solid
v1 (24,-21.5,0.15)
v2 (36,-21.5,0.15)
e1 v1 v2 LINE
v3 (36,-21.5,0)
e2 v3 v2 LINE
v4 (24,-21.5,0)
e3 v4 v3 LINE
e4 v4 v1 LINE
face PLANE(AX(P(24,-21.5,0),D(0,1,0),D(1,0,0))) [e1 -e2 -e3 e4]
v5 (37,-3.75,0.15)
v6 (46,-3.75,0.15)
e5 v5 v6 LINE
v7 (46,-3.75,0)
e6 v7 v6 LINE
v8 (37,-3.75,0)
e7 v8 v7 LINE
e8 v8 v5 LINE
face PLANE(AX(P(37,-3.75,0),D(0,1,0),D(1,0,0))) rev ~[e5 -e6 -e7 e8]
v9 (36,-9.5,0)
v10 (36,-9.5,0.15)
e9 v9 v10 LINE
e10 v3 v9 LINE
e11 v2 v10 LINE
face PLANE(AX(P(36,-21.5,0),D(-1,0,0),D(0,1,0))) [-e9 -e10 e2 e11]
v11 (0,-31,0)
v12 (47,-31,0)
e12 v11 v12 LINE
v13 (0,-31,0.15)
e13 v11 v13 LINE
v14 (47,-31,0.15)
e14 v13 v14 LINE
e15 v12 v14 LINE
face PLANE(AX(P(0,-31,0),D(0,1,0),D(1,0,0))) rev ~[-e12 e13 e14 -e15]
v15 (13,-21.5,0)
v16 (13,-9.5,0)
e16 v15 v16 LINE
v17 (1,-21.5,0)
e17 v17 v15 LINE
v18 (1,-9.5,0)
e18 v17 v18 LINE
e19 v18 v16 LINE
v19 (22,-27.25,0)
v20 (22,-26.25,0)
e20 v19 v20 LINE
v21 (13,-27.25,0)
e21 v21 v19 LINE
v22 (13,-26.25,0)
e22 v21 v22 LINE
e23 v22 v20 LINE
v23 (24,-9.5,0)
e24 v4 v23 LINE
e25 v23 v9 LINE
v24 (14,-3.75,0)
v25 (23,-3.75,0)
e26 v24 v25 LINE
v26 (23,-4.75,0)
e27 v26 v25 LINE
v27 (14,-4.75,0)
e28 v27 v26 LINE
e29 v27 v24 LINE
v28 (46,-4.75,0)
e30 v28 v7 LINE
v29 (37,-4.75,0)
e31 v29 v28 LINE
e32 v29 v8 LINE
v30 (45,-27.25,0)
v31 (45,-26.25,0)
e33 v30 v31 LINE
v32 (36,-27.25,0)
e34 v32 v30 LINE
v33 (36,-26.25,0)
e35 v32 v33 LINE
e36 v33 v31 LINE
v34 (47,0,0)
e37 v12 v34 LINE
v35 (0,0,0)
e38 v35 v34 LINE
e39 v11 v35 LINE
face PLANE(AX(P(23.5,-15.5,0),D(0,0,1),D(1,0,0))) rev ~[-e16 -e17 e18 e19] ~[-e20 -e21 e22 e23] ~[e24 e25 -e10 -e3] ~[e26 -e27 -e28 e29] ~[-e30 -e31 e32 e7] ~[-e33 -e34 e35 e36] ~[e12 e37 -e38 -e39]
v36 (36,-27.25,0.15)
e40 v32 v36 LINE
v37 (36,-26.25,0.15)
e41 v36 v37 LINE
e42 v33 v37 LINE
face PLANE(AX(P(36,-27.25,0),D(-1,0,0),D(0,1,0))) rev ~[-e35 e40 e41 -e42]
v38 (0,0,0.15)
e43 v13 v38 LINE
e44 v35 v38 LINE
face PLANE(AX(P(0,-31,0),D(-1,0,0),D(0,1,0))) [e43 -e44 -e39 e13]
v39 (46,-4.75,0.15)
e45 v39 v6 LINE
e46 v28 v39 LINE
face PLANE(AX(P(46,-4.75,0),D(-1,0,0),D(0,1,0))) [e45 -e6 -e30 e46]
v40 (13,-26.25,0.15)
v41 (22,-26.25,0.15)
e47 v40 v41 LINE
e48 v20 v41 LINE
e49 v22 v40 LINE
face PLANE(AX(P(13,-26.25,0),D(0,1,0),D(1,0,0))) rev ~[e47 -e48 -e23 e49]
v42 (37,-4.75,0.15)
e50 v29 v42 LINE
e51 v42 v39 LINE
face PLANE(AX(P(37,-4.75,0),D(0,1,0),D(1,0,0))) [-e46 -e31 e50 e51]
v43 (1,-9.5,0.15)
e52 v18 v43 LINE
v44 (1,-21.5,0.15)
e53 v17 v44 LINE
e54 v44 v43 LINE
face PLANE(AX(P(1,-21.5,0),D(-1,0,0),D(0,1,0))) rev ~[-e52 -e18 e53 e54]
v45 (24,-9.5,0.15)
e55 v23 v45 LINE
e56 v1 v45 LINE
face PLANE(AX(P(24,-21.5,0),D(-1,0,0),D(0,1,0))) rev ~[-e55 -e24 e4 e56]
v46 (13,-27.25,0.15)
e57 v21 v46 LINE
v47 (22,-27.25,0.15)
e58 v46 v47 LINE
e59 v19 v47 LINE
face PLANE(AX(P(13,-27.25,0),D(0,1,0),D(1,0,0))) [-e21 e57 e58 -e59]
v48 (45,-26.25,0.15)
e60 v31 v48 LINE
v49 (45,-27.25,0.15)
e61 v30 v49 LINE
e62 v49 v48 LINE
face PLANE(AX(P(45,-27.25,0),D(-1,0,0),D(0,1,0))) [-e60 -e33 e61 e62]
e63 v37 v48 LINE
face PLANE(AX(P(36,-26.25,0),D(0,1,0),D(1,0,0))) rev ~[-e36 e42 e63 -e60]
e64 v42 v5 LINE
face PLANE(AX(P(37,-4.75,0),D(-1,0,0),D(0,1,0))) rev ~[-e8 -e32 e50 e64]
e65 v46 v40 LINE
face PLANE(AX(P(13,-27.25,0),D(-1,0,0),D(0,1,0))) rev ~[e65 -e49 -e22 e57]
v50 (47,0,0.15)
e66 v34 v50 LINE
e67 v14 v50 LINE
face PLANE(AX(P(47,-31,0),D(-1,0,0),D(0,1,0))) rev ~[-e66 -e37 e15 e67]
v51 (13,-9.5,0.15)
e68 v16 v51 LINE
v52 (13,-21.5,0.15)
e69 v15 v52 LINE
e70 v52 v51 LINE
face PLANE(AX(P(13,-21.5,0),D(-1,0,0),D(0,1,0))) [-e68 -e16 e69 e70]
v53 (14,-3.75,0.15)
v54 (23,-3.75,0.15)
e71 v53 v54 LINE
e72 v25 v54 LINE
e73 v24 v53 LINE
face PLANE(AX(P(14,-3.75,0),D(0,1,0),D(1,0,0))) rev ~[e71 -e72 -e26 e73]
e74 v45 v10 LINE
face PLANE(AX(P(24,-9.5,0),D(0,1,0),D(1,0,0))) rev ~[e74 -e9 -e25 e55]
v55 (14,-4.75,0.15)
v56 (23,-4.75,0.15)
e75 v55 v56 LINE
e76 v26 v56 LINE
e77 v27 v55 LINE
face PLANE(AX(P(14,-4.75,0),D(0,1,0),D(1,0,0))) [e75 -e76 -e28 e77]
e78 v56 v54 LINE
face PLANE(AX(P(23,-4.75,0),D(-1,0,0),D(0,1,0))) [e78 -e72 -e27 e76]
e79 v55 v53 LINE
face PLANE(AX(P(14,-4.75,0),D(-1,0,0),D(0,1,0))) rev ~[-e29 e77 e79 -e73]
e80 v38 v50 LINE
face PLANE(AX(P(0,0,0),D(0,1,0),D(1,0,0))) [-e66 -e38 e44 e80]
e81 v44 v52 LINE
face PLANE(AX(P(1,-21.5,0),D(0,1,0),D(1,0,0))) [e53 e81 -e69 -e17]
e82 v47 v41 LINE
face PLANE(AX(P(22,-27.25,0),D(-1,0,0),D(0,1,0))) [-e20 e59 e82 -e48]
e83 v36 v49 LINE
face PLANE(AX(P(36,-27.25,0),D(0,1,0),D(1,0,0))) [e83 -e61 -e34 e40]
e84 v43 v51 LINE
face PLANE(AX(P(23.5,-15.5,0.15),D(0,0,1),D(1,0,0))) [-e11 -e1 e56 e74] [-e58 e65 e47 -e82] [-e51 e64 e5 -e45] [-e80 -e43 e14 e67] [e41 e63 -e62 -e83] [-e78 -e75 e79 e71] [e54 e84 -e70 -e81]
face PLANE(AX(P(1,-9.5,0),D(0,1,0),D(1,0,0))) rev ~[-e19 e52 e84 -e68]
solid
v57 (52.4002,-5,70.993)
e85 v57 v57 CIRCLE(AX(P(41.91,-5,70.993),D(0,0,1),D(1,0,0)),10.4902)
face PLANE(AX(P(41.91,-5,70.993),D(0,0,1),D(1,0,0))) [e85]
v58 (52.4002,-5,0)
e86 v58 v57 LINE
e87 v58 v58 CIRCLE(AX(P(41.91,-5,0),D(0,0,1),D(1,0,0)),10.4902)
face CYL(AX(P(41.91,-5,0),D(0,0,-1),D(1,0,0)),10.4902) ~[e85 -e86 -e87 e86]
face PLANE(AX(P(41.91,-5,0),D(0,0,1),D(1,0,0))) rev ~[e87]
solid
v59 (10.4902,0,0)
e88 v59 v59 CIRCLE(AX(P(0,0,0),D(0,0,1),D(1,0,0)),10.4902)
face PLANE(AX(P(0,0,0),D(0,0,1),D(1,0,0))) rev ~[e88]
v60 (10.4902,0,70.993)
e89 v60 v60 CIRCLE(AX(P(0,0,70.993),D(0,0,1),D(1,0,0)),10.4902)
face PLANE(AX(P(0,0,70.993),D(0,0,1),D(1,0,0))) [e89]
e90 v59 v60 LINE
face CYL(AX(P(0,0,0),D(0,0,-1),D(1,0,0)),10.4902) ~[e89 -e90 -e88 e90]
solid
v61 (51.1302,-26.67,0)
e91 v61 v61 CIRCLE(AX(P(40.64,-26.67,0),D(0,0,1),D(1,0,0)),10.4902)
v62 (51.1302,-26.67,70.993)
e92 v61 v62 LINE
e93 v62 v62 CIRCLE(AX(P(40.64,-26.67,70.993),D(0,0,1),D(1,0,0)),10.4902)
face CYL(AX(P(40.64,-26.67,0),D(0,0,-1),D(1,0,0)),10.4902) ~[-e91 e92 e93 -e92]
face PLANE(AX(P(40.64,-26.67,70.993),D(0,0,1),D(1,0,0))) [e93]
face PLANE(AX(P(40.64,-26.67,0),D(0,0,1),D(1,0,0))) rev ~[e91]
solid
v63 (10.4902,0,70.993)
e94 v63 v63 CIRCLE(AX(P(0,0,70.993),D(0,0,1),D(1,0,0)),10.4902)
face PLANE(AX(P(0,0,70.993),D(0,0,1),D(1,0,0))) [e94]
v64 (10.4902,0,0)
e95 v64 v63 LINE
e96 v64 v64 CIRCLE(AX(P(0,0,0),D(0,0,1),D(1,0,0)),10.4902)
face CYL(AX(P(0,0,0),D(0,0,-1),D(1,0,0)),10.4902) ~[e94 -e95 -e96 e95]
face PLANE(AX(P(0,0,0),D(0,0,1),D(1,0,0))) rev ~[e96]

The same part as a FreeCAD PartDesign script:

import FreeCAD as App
import Part
import Sketcher
from FreeCAD import Vector

doc = App.newDocument("Part")
body = doc.addObject("PartDesign::Body", "Body")

# Sketch on XY plane
sketch1 = body.newObject("Sketcher::SketchObject", "Sketch")
sketch1.AttachmentSupport = (doc.getObject("XY_Plane"), [""])
sketch1.MapMode = "FlatFace"
sketch1.addGeometry(Part.Circle(Vector(0, 0, 0), Vector(0, 0, 1), 10), False)
sketch1.addConstraint([
    Sketcher.Constraint("Coincident", 0, 3, -1, 1),
    Sketcher.Constraint("Diameter", 0, 20.9804),
])
pad1 = body.newObject("PartDesign::Pad", "Pad")
pad1.Profile = sketch1
pad1.Length = 70.993
body2 = doc.addObject("PartDesign::Body", "Body001")

# Sketch on XY plane
sketch2 = body2.newObject("Sketcher::SketchObject", "Sketch001")
sketch2.AttachmentSupport = (doc.getObject("XY_Plane001"), [""])
sketch2.MapMode = "FlatFace"
sketch2.addGeometry([
    Part.LineSegment(Vector(0, 0, 0), Vector(0, -31, 0)),  # 0
    Part.LineSegment(Vector(0, -31, 0), Vector(47, -31, 0)),  # 1
    Part.LineSegment(Vector(47, -31, 0), Vector(47, 0, 0)),  # 2
    Part.LineSegment(Vector(47, 0, 0), Vector(0, 0, 0)),  # 3
    Part.LineSegment(Vector(22, -27.2, 0), Vector(13, -27.2, 0)),  # 4
    Part.LineSegment(Vector(13, -27.2, 0), Vector(13, -26.2, 0)),  # 5
    Part.LineSegment(Vector(13, -26.2, 0), Vector(22, -26.2, 0)),  # 6
    Part.LineSegment(Vector(22, -26.2, 0), Vector(22, -27.2, 0)),  # 7
    Part.LineSegment(Vector(45, -27.2, 0), Vector(36, -27.2, 0)),  # 8
    Part.LineSegment(Vector(36, -27.2, 0), Vector(36, -26.2, 0)),  # 9
    Part.LineSegment(Vector(36, -26.2, 0), Vector(45, -26.2, 0)),  # 10
    Part.LineSegment(Vector(45, -26.2, 0), Vector(45, -27.2, 0)),  # 11
    Part.LineSegment(Vector(13, -21.5, 0), Vector(1, -21.5, 0)),  # 12
    Part.LineSegment(Vector(1, -21.5, 0), Vector(1, -9.5, 0)),  # 13
    Part.LineSegment(Vector(1, -9.5, 0), Vector(13, -9.5, 0)),  # 14
    Part.LineSegment(Vector(13, -9.5, 0), Vector(13, -21.5, 0)),  # 15
    Part.LineSegment(Vector(23, -4.8, 0), Vector(14, -4.8, 0)),  # 16
    Part.LineSegment(Vector(14, -4.8, 0), Vector(14, -3.8, 0)),  # 17
    Part.LineSegment(Vector(14, -3.8, 0), Vector(23, -3.8, 0)),  # 18
    Part.LineSegment(Vector(23, -3.8, 0), Vector(23, -4.8, 0)),  # 19
    Part.LineSegment(Vector(36, -21.5, 0), Vector(24, -21.5, 0)),  # 20
    Part.LineSegment(Vector(24, -21.5, 0), Vector(24, -9.5, 0)),  # 21
    Part.LineSegment(Vector(24, -9.5, 0), Vector(36, -9.5, 0)),  # 22
    Part.LineSegment(Vector(36, -9.5, 0), Vector(36, -21.5, 0)),  # 23
    Part.LineSegment(Vector(46, -4.8, 0), Vector(37, -4.8, 0)),  # 24
    Part.LineSegment(Vector(37, -4.8, 0), Vector(37, -3.8, 0)),  # 25
    Part.LineSegment(Vector(37, -3.8, 0), Vector(46, -3.8, 0)),  # 26
    Part.LineSegment(Vector(46, -3.8, 0), Vector(46, -4.8, 0)),  # 27
], False)
sketch2.addConstraint([
    Sketcher.Constraint("Coincident", 0, 2, 1, 1),
    Sketcher.Constraint("Coincident", 1, 2, 2, 1),
    Sketcher.Constraint("Coincident", 2, 2, 3, 1),
    Sketcher.Constraint("Coincident", 3, 2, 0, 1),
    Sketcher.Constraint("Coincident", 4, 2, 5, 1),
    Sketcher.Constraint("Coincident", 5, 2, 6, 1),
    Sketcher.Constraint("Coincident", 6, 2, 7, 1),
    Sketcher.Constraint("Coincident", 7, 2, 4, 1),
    Sketcher.Constraint("Coincident", 8, 2, 9, 1),
    Sketcher.Constraint("Coincident", 9, 2, 10, 1),
    Sketcher.Constraint("Coincident", 10, 2, 11, 1),
    Sketcher.Constraint("Coincident", 11, 2, 8, 1),
    Sketcher.Constraint("Coincident", 12, 2, 13, 1),
    Sketcher.Constraint("Coincident", 13, 2, 14, 1),
    Sketcher.Constraint("Coincident", 14, 2, 15, 1),
    Sketcher.Constraint("Coincident", 15, 2, 12, 1),
    Sketcher.Constraint("Coincident", 16, 2, 17, 1),
    Sketcher.Constraint("Coincident", 17, 2, 18, 1),
    Sketcher.Constraint("Coincident", 18, 2, 19, 1),
    Sketcher.Constraint("Coincident", 19, 2, 16, 1),
    Sketcher.Constraint("Coincident", 20, 2, 21, 1),
    Sketcher.Constraint("Coincident", 21, 2, 22, 1),
    Sketcher.Constraint("Coincident", 22, 2, 23, 1),
    Sketcher.Constraint("Coincident", 23, 2, 20, 1),
    Sketcher.Constraint("Coincident", 24, 2, 25, 1),
    Sketcher.Constraint("Coincident", 25, 2, 26, 1),
    Sketcher.Constraint("Coincident", 26, 2, 27, 1),
    Sketcher.Constraint("Coincident", 27, 2, 24, 1),
    Sketcher.Constraint("Vertical", 0),
    Sketcher.Constraint("Horizontal", 1),
    Sketcher.Constraint("Vertical", 2),
    Sketcher.Constraint("Horizontal", 3),
    Sketcher.Constraint("Horizontal", 4),
    Sketcher.Constraint("Vertical", 5),
    Sketcher.Constraint("Horizontal", 6),
    Sketcher.Constraint("Vertical", 7),
    Sketcher.Constraint("Horizontal", 8),
    Sketcher.Constraint("Vertical", 9),
    Sketcher.Constraint("Horizontal", 10),
    Sketcher.Constraint("Vertical", 11),
    Sketcher.Constraint("Horizontal", 12),
    Sketcher.Constraint("Vertical", 13),
    Sketcher.Constraint("Horizontal", 14),
    Sketcher.Constraint("Vertical", 15),
    Sketcher.Constraint("Horizontal", 16),
    Sketcher.Constraint("Vertical", 17),
    Sketcher.Constraint("Horizontal", 18),
    Sketcher.Constraint("Vertical", 19),
    Sketcher.Constraint("Horizontal", 20),
    Sketcher.Constraint("Vertical", 21),
    Sketcher.Constraint("Horizontal", 22),
    Sketcher.Constraint("Vertical", 23),
    Sketcher.Constraint("Horizontal", 24),
    Sketcher.Constraint("Vertical", 25),
    Sketcher.Constraint("Horizontal", 26),
    Sketcher.Constraint("Vertical", 27),
    Sketcher.Constraint("Coincident", 3, 2, -1, 1),
    Sketcher.Constraint("Horizontal", 7, 2, 8, 2),
    Sketcher.Constraint("Horizontal", 6, 2, 9, 2),
    Sketcher.Constraint("Horizontal", 15, 2, 20, 2),
    Sketcher.Constraint("Horizontal", 14, 2, 21, 2),
    Sketcher.Constraint("Horizontal", 19, 2, 24, 2),
    Sketcher.Constraint("Horizontal", 18, 2, 25, 2),
    Sketcher.Constraint("Vertical", 5, 2, 14, 2),
    Sketcher.Constraint("Vertical", 9, 2, 22, 2),
    Sketcher.Constraint("Equal", 6, 8),
    Sketcher.Constraint("Equal", 10, 16),
    Sketcher.Constraint("Equal", 14, 20),
    Sketcher.Constraint("Equal", 18, 24),
    Sketcher.Constraint("Equal", 22, 13),
    Sketcher.Constraint("Equal", 11, 17),
    Sketcher.Constraint("DistanceX", 1, 1, 1, 2, 47.0),
    Sketcher.Constraint("DistanceX", 4, 2, 4, 1, 9.0),
    Sketcher.Constraint("DistanceX", 12, 2, 12, 1, 12.0),
    Sketcher.Constraint("DistanceY", 0, 2, 0, 1, 31.0),
    Sketcher.Constraint("DistanceY", 5, 1, 5, 2, 1.0),
    Sketcher.Constraint("DistanceX", -1, 1, 4, 2, 13.0),
    Sketcher.Constraint("DistanceX", -1, 1, 8, 2, 36.0),
    Sketcher.Constraint("DistanceX", -1, 1, 16, 2, 14.0),
    Sketcher.Constraint("DistanceX", -1, 1, 24, 2, 37.0),
    Sketcher.Constraint("DistanceY", 12, 2, -1, 1, 21.5),
    Sketcher.Constraint("DistanceY", 6, 2, 18, 2, 22.5),
    Sketcher.Constraint("DistanceY", 4, 2, -1, 1, 27.25),
])
pad2 = body2.newObject("PartDesign::Pad", "Pad001")
pad2.Profile = sketch2
pad2.Length = 0.15
body3 = doc.addObject("PartDesign::Body", "Body002")

# Sketch on XY plane
sketch3 = body3.newObject("Sketcher::SketchObject", "Sketch002")
sketch3.AttachmentSupport = (doc.getObject("XY_Plane002"), [""])
sketch3.MapMode = "FlatFace"
sketch3.addGeometry(Part.Circle(Vector(42, -5, 0), Vector(0, 0, 1), 10), False)
sketch3.addConstraint([
    Sketcher.Constraint("DistanceY", 0, 3, -1, 1, 5.0),
    Sketcher.Constraint("Diameter", 0, 20.9804),
    Sketcher.Constraint("DistanceX", -1, 1, 0, 3, 41.91),
])
pad3 = body3.newObject("PartDesign::Pad", "Pad002")
pad3.Profile = sketch3
pad3.Length = 70.993
body4 = doc.addObject("PartDesign::Body", "Body003")

# Sketch on XY plane
sketch4 = body4.newObject("Sketcher::SketchObject", "Sketch003")
sketch4.AttachmentSupport = (doc.getObject("XY_Plane003"), [""])
sketch4.MapMode = "FlatFace"
sketch4.addGeometry(Part.Circle(Vector(41, -27, 0), Vector(0, 0, 1), 10), False)
sketch4.addConstraint([
    Sketcher.Constraint("Diameter", 0, 20.9804),
    Sketcher.Constraint("DistanceX", -1, 1, 0, 3, 40.64),
    Sketcher.Constraint("DistanceY", 0, 3, -1, 1, 26.67),
])
pad4 = body4.newObject("PartDesign::Pad", "Pad003")
pad4.Profile = sketch4
pad4.Length = 70.993
body5 = doc.addObject("PartDesign::Body", "Body004")

# Sketch on XY plane
sketch5 = body5.newObject("Sketcher::SketchObject", "Sketch004")
sketch5.AttachmentSupport = (doc.getObject("XY_Plane004"), [""])
sketch5.MapMode = "FlatFace"
sketch5.addGeometry(Part.Circle(Vector(0, 0, 0), Vector(0, 0, 1), 10), False)
sketch5.addConstraint([
    Sketcher.Constraint("Coincident", 0, 3, -1, 1),
    Sketcher.Constraint("Diameter", 0, 20.9804),
])
pad5 = body5.newObject("PartDesign::Pad", "Pad004")
pad5.Profile = sketch5
pad5.Length = 70.993

doc.recompute()
